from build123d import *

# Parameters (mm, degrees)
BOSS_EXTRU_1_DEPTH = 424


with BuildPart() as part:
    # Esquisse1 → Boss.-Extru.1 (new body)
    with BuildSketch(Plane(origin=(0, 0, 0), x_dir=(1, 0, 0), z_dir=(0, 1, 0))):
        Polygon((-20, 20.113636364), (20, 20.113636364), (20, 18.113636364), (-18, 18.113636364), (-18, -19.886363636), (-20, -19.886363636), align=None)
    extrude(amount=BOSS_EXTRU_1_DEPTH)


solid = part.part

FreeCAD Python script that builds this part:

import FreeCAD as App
import Part
import Sketcher
from FreeCAD import Vector
Q = App.Units.Quantity

doc = App.newDocument("Part")
body = doc.addObject("PartDesign::Body", "Body")

# Sketch on XZ plane
sketch1 = body.newObject("Sketcher::SketchObject", "Sketch")
sketch1.AttachmentSupport = (doc.getObject("XZ_Plane"), [""])
sketch1.MapMode = "FlatFace"
sketch1.addGeometry(Part.LineSegment(Vector(20, -20.1, 0), Vector(-20, -20.1, 0)), False)
sketch1.addGeometry(Part.LineSegment(Vector(-20, -20.1, 0), Vector(-20, 19.9, 0)), False)
sketch1.addGeometry(Part.LineSegment(Vector(-20, 19.9, 0), Vector(-18, 19.9, 0)), False)
sketch1.addGeometry(Part.LineSegment(Vector(-18, 19.9, 0), Vector(-18, -18.1, 0)), False)
sketch1.addGeometry(Part.LineSegment(Vector(-18, -18.1, 0), Vector(20, -18.1, 0)), False)
sketch1.addGeometry(Part.LineSegment(Vector(20, -18.1, 0), Vector(20, -20.1, 0)), False)
sketch1.addConstraint(Sketcher.Constraint("Coincident", 0, 2, 1, 1))
sketch1.addConstraint(Sketcher.Constraint("Coincident", 1, 2, 2, 1))
sketch1.addConstraint(Sketcher.Constraint("Coincident", 2, 2, 3, 1))
sketch1.addConstraint(Sketcher.Constraint("Coincident", 3, 2, 4, 1))
sketch1.addConstraint(Sketcher.Constraint("Coincident", 4, 2, 5, 1))
sketch1.addConstraint(Sketcher.Constraint("Coincident", 5, 2, 0, 1))
sketch1.addConstraint(Sketcher.Constraint("Horizontal", 0))
sketch1.addConstraint(Sketcher.Constraint("Vertical", 1))
sketch1.addConstraint(Sketcher.Constraint("Horizontal", 2))
sketch1.addConstraint(Sketcher.Constraint("Vertical", 3))
sketch1.addConstraint(Sketcher.Constraint("Horizontal", 4))
sketch1.addConstraint(Sketcher.Constraint("Vertical", 5))
sketch1.addConstraint(Sketcher.Constraint("Equal", 0, 1))
sketch1.addConstraint(Sketcher.Constraint("Equal", 4, 3))
sketch1.addConstraint(Sketcher.Constraint("DistanceX", 0, 2, 0, 1, Q("40 mm")))
sketch1.addConstraint(Sketcher.Constraint("DistanceX", 2, 1, 2, 2, Q("2 mm")))
sketch1.addConstraint(Sketcher.Constraint("DistanceX", 0, 2, -1, 1, Q("20 mm")))
sketch1.addConstraint(Sketcher.Constraint("DistanceY", 0, 2, -1, 1, Q("20.113636 mm")))
pad1 = body.newObject("PartDesign::Pad", "Pad")
pad1.Profile = sketch1
pad1.Length = 424
pad1.Reversed = True

doc.recompute()
